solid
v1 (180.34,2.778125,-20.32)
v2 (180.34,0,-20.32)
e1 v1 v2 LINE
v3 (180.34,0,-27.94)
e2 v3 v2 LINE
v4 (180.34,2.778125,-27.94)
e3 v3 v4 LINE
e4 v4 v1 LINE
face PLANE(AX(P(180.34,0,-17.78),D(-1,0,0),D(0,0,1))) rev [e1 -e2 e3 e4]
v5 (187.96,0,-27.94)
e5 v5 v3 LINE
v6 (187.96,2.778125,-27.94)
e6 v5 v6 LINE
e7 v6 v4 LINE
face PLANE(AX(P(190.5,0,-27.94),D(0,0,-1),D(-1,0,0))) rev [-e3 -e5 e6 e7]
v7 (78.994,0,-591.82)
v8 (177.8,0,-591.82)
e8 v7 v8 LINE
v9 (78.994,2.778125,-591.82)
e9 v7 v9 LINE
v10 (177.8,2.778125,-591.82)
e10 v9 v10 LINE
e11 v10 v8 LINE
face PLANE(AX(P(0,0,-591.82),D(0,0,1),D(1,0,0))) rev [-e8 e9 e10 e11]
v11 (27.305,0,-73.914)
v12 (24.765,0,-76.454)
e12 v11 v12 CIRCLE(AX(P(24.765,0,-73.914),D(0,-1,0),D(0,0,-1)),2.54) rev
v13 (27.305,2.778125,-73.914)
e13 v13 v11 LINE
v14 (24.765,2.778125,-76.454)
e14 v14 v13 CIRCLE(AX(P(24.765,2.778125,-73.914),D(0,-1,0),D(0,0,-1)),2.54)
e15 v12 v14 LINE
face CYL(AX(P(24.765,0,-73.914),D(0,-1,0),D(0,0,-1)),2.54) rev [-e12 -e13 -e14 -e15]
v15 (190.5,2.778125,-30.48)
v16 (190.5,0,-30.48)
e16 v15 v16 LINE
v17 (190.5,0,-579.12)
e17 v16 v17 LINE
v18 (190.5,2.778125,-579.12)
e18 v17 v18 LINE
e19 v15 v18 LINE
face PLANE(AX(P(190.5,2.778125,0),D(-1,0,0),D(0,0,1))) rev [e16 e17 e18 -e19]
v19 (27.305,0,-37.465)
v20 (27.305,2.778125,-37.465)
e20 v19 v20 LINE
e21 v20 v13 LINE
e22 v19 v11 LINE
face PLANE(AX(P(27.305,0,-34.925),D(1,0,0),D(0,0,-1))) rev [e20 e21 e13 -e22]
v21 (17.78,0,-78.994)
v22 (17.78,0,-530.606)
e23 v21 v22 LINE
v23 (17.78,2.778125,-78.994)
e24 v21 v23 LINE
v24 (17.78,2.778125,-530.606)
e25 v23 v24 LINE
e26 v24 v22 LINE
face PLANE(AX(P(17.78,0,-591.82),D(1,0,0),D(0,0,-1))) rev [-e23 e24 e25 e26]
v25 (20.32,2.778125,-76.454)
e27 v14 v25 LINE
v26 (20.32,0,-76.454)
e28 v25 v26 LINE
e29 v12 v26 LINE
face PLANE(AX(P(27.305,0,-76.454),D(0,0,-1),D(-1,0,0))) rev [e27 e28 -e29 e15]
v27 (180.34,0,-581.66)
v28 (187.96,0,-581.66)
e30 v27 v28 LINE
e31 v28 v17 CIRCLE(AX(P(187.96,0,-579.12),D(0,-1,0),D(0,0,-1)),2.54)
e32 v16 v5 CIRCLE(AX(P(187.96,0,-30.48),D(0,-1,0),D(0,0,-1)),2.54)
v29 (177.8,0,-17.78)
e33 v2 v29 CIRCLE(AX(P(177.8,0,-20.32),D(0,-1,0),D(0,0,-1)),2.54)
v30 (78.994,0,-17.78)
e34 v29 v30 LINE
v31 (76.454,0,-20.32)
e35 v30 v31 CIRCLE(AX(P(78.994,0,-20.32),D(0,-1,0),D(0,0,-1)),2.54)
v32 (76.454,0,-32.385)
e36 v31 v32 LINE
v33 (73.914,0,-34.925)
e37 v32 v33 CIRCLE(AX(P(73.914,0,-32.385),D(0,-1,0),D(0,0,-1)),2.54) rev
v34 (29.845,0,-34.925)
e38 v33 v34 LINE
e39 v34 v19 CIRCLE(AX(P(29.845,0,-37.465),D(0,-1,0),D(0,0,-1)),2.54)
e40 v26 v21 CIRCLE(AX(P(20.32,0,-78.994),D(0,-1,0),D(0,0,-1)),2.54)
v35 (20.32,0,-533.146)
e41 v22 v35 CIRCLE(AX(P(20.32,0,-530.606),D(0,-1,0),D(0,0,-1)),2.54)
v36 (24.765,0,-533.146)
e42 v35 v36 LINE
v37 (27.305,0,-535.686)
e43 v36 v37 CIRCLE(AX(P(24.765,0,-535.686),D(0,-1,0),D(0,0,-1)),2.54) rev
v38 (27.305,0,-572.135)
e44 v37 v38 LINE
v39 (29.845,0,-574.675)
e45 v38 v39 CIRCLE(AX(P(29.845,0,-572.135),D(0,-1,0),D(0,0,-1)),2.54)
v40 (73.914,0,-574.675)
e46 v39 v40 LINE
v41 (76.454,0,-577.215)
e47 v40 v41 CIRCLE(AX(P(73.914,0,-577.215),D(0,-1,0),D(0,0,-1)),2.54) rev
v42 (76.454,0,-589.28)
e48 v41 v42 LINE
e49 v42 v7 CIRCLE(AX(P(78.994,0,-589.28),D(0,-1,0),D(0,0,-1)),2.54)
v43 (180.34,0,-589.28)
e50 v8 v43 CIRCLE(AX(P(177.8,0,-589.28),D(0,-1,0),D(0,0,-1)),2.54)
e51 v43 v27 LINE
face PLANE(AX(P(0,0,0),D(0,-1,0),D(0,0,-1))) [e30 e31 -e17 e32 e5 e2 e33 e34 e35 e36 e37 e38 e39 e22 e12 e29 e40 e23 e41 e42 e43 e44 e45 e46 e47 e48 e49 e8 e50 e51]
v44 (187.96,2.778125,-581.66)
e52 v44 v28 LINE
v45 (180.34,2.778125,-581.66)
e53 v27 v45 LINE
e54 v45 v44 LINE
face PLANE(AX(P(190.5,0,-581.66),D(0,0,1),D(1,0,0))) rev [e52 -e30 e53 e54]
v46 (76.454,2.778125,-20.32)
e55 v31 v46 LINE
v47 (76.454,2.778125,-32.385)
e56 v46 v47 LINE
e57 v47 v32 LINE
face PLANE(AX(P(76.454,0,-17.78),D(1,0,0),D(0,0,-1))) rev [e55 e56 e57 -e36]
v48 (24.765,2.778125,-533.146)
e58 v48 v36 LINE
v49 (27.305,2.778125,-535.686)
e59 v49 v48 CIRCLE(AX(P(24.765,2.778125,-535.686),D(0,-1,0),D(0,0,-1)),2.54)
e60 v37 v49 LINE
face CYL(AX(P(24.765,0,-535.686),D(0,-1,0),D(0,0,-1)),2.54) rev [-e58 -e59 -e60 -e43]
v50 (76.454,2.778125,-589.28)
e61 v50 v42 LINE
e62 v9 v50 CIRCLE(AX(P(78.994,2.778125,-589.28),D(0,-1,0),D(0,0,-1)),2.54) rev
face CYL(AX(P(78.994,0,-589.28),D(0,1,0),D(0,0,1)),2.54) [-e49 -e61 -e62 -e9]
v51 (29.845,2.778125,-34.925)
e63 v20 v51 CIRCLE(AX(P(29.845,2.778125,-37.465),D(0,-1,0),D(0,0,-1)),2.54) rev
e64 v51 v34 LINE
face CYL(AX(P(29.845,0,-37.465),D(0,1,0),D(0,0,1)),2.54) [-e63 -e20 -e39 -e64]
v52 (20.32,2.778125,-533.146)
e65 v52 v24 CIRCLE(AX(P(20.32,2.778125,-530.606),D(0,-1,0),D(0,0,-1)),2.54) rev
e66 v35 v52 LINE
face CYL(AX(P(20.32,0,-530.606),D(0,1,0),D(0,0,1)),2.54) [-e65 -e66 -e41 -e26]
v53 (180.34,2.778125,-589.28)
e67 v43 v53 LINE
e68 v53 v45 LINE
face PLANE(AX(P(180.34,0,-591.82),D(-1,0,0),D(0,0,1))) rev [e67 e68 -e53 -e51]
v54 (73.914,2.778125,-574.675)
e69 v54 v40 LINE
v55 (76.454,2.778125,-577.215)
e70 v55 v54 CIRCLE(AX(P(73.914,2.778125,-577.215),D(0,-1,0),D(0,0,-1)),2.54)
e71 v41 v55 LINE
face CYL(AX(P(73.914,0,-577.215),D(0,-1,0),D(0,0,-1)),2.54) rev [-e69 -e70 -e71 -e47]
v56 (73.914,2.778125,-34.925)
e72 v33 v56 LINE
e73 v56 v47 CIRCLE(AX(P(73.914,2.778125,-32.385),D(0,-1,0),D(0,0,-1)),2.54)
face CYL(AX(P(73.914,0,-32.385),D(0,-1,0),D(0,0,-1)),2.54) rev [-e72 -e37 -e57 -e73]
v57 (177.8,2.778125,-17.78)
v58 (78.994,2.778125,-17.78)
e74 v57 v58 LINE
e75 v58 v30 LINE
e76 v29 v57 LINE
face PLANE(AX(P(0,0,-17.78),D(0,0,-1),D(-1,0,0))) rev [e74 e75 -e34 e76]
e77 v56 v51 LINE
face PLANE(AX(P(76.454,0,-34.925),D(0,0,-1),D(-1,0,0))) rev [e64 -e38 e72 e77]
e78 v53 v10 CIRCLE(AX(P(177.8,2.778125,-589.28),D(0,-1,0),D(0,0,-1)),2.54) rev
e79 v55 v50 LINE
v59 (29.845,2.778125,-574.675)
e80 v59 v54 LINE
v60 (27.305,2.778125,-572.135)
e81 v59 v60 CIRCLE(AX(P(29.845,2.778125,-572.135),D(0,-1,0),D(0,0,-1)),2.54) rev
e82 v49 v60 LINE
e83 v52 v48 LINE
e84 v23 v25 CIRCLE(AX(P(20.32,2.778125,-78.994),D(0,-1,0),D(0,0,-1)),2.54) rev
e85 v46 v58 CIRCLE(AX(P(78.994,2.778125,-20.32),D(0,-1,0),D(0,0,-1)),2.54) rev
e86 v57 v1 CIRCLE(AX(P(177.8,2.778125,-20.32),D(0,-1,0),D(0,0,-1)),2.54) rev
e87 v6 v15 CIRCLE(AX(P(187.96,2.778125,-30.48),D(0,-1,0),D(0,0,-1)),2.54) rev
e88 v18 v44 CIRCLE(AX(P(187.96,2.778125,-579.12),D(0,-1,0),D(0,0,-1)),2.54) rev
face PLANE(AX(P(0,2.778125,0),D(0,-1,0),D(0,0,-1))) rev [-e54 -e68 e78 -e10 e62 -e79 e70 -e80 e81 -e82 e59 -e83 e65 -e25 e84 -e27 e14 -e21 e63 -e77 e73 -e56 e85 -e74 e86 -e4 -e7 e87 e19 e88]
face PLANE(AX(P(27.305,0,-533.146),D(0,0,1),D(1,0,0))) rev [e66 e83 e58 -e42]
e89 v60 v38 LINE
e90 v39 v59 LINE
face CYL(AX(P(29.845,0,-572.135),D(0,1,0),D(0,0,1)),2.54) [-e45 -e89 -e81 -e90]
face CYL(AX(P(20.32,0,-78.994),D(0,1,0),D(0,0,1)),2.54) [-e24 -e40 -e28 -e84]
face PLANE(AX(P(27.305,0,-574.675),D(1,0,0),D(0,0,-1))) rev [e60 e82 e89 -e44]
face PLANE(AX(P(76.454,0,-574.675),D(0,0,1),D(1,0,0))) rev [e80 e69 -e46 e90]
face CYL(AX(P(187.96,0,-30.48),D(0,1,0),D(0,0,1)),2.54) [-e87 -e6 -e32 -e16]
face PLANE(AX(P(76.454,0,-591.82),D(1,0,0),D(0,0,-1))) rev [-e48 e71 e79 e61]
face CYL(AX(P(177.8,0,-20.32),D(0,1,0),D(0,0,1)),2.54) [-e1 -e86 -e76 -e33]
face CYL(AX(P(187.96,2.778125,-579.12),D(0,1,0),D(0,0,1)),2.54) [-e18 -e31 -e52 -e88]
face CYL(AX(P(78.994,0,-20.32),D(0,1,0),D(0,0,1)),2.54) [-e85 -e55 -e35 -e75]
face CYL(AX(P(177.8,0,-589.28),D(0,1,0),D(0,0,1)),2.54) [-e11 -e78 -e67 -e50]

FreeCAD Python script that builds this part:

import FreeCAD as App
import Part
import Sketcher

V = App.Vector
Q = App.Units.Quantity


def edges_at(feature, points):
    """Names of the edges that pass closest to the given points."""
    edges = feature.Shape.Edges
    near = lambda p: min(range(len(edges)), key=lambda i: edges[i].distToShape(Part.Vertex(*p))[0])
    return sorted({f"Edge{near(p) + 1}" for p in points})


def add_polygon(sketch, points):
    """Adds a closed chain of lines whose ends are joined by coincident constraints."""
    first, n = sketch.GeometryCount, len(points)
    for a, b in zip(points, points[1:] + points[:1]):
        sketch.addGeometry(Part.LineSegment(App.Vector(*a, 0), App.Vector(*b, 0)), False)
    for i in range(n):
        sketch.addConstraint(Sketcher.Constraint("Coincident", first + i, 2, first + (i + 1) % n, 1))

doc = App.newDocument("Part")
body = doc.addObject("PartDesign::Body", "Body")

# Sketch on XZ plane
sketch1 = doc.addObject("Sketcher::SketchObject", "Sketch")
body.addObject(sketch1)
sketch1.AttachmentSupport = (doc.XZ_Plane, [""])
sketch1.MapMode = "FlatFace"
add_polygon(sketch1, [(0, -610), (0, 0), (190, 0), (190, -610)])  # lines 0-3
sketch1.addConstraint([
    Sketcher.Constraint("Vertical", 0),
    Sketcher.Constraint("Horizontal", 1),
    Sketcher.Constraint("Vertical", 2),
    Sketcher.Constraint("Horizontal", 3),
    Sketcher.Constraint("Coincident", 0, 2, -1, 1),
    Sketcher.Constraint("DistanceY", 0, 1, 0, 2, Q("24 in")),
    Sketcher.Constraint("DistanceX", 1, 1, 1, 2, Q("7.5 in")),
])
pad1 = doc.addObject("PartDesign::Pad", "Pad")
body.addObject(pad1)
pad1.Profile = sketch1
pad1.Length = Q("0.109375 in")
pad1.Reversed = True

# Sketch on XZ plane
sketch2 = doc.addObject("Sketcher::SketchObject", "Sketch001")
body.addObject(sketch2)
sketch2.AttachmentSupport = (doc.XZ_Plane, [""])
sketch2.MapMode = "FlatFace"
sketch2.AttachmentOffset = App.Placement(V(0, 0, -0.109375 * 25.4), App.Rotation())
add_polygon(sketch2, [(0, -18), (0, 0), (190, 0), (190, -18)])  # lines 0-3
add_polygon(sketch2, [(0, -610), (0, -592), (190, -592), (190, -610)])  # lines 4-7
sketch2.addConstraint([
    Sketcher.Constraint("Vertical", 0),
    Sketcher.Constraint("Horizontal", 1),
    Sketcher.Constraint("Vertical", 2),
    Sketcher.Constraint("Horizontal", 3),
    Sketcher.Constraint("Vertical", 4),
    Sketcher.Constraint("Horizontal", 5),
    Sketcher.Constraint("Vertical", 6),
    Sketcher.Constraint("Horizontal", 7),
    Sketcher.Constraint("Coincident", 0, 2, -1, 1),
    Sketcher.Constraint("PointOnObject", 4, 2, -2),
    Sketcher.Constraint("Vertical", 2, 2, 5, 2),
    Sketcher.Constraint("Equal", 2, 4),
    Sketcher.Constraint("DistanceX", 1, 1, 1, 2, Q("7.5 in")),
    Sketcher.Constraint("DistanceY", 0, 1, 0, 2, Q("0.7 in")),
    Sketcher.Constraint("DistanceY", 6, 2, -1, 1, Q("24 in")),
])
pocket1 = doc.addObject("PartDesign::Pocket", "Pocket")
body.addObject(pocket1)
pocket1.Profile = sketch2
pocket1.Type = "ThroughAll"
pocket1.Reversed = True

# Sketch on XZ plane
sketch3 = doc.addObject("Sketcher::SketchObject", "Sketch002")
body.addObject(sketch3)
sketch3.AttachmentSupport = (doc.XZ_Plane, [""])
sketch3.MapMode = "FlatFace"
sketch3.AttachmentOffset = App.Placement(V(0, 0, -0.109375 * 25.4), App.Rotation())
add_polygon(sketch3, [(0, -592), (0, -18), (18, -18), (18, -592)])  # lines 0-3
sketch3.addConstraint([
    Sketcher.Constraint("Vertical", 0),
    Sketcher.Constraint("Horizontal", 1),
    Sketcher.Constraint("Vertical", 2),
    Sketcher.Constraint("Horizontal", 3),
    Sketcher.Constraint("PointOnObject", 0, 2, -2),
    Sketcher.Constraint("DistanceX", 1, 1, 1, 2, Q("0.7 in")),
    Sketcher.Constraint("DistanceY", 0, 1, 0, 2, Q("22.6 in")),
    Sketcher.Constraint("DistanceY", 0, 2, -1, 1, Q("0.7 in")),
])
pocket2 = doc.addObject("PartDesign::Pocket", "Pocket001")
body.addObject(pocket2)
pocket2.Profile = sketch3
pocket2.Type = "ThroughAll"
pocket2.Reversed = True

# Sketch on XZ plane
sketch4 = doc.addObject("Sketcher::SketchObject", "Sketch003")
body.addObject(sketch4)
sketch4.AttachmentSupport = (doc.XZ_Plane, [""])
sketch4.MapMode = "FlatFace"
sketch4.AttachmentOffset = App.Placement(V(0, 0, -0.109375 * 25.4), App.Rotation())
add_polygon(sketch4, [(76, -592), (18, -592), (18, -533), (27, -533), (27, -575), (76, -575)])  # lines 0-5
add_polygon(sketch4, [(18, -18), (76, -18), (76, -35), (27, -35), (27, -76), (18, -76)])  # lines 6-11
add_polygon(sketch4, [(180, -592), (180, -582), (190, -582), (190, -592)])  # lines 12-15
add_polygon(sketch4, [(180, -28), (180, -18), (190, -18), (190, -28)])  # lines 16-19
sketch4.addConstraint([
    Sketcher.Constraint("Horizontal", 0),
    Sketcher.Constraint("Vertical", 1),
    Sketcher.Constraint("Horizontal", 2),
    Sketcher.Constraint("Vertical", 3),
    Sketcher.Constraint("Horizontal", 4),
    Sketcher.Constraint("Vertical", 5),
    Sketcher.Constraint("Horizontal", 6),
    Sketcher.Constraint("Vertical", 7),
    Sketcher.Constraint("Horizontal", 8),
    Sketcher.Constraint("Vertical", 9),
    Sketcher.Constraint("Horizontal", 10),
    Sketcher.Constraint("Vertical", 11),
    Sketcher.Constraint("Vertical", 12),
    Sketcher.Constraint("Horizontal", 13),
    Sketcher.Constraint("Vertical", 14),
    Sketcher.Constraint("Horizontal", 15),
    Sketcher.Constraint("Vertical", 16),
    Sketcher.Constraint("Horizontal", 17),
    Sketcher.Constraint("Vertical", 18),
    Sketcher.Constraint("Horizontal", 19),
    Sketcher.Constraint("Horizontal", 5, 2, 14, 2),
    Sketcher.Constraint("Horizontal", 11, 2, 16, 2),
    Sketcher.Constraint("Vertical", 5, 2, 6, 2),
    Sketcher.Constraint("Vertical", 3, 2, 8, 2),
    Sketcher.Constraint("Vertical", 1, 2, 10, 2),
    Sketcher.Constraint("Vertical", 15, 2, 16, 2),
    Sketcher.Constraint("Vertical", 14, 2, 17, 2),
    Sketcher.Constraint("Equal", 6, 1),
    Sketcher.Constraint("Equal", 5, 7),
    Sketcher.Constraint("Equal", 3, 9),
    Sketcher.Constraint("Equal", 19, 12),
    Sketcher.Constraint("Equal", 14, 16),
    Sketcher.Constraint("DistanceX", 13, 1, 13, 2, Q("0.4 in")),
    Sketcher.Constraint("DistanceX", 0, 2, 0, 1, Q("2.31 in")),
    Sketcher.Constraint("DistanceX", -1, 1, 0, 2, Q("0.7 in")),
    Sketcher.Constraint("DistanceY", 0, 2, -1, 1, Q("23.3 in")),
    Sketcher.Constraint("DistanceY", 6, 2, -1, 1, Q("0.7 in")),
    Sketcher.Constraint("DistanceX", -1, 1, 12, 2, Q("7.1 in")),
    Sketcher.Constraint("DistanceX", 2, 1, 2, 2, Q("0.375 in")),
    Sketcher.Constraint("DistanceY", 3, 2, 3, 1, Q("1.635 in")),
])
pocket3 = doc.addObject("PartDesign::Pocket", "Pocket002")
body.addObject(pocket3)
pocket3.Profile = sketch4
pocket3.Type = "ThroughAll"
pocket3.Reversed = True
doc.recompute()

fillet = doc.addObject("PartDesign::Fillet", "Fillet")
body.addObject(fillet)
fillet.Base = (pocket3, edges_at(pocket3, [
    (17.78, 1.389, -76.454),
    (27.305, 1.389, -76.454),
    (27.305, 1.389, -34.925),
    (76.454, 1.389, -34.925),
    (76.454, 1.389, -17.78),
    (190.5, 1.389, -581.66),
    (180.34, 1.389, -591.82),
    (190.5, 1.389, -27.94),
    (180.34, 1.389, -17.78),
    (17.78, 1.389, -533.146),
    (76.454, 1.389, -591.82),
    (76.454, 1.389, -574.675),
    (27.305, 1.389, -574.675),
    (27.305, 1.389, -533.146),
]))
fillet.Radius = Q("0.1 in")

doc.recompute()
